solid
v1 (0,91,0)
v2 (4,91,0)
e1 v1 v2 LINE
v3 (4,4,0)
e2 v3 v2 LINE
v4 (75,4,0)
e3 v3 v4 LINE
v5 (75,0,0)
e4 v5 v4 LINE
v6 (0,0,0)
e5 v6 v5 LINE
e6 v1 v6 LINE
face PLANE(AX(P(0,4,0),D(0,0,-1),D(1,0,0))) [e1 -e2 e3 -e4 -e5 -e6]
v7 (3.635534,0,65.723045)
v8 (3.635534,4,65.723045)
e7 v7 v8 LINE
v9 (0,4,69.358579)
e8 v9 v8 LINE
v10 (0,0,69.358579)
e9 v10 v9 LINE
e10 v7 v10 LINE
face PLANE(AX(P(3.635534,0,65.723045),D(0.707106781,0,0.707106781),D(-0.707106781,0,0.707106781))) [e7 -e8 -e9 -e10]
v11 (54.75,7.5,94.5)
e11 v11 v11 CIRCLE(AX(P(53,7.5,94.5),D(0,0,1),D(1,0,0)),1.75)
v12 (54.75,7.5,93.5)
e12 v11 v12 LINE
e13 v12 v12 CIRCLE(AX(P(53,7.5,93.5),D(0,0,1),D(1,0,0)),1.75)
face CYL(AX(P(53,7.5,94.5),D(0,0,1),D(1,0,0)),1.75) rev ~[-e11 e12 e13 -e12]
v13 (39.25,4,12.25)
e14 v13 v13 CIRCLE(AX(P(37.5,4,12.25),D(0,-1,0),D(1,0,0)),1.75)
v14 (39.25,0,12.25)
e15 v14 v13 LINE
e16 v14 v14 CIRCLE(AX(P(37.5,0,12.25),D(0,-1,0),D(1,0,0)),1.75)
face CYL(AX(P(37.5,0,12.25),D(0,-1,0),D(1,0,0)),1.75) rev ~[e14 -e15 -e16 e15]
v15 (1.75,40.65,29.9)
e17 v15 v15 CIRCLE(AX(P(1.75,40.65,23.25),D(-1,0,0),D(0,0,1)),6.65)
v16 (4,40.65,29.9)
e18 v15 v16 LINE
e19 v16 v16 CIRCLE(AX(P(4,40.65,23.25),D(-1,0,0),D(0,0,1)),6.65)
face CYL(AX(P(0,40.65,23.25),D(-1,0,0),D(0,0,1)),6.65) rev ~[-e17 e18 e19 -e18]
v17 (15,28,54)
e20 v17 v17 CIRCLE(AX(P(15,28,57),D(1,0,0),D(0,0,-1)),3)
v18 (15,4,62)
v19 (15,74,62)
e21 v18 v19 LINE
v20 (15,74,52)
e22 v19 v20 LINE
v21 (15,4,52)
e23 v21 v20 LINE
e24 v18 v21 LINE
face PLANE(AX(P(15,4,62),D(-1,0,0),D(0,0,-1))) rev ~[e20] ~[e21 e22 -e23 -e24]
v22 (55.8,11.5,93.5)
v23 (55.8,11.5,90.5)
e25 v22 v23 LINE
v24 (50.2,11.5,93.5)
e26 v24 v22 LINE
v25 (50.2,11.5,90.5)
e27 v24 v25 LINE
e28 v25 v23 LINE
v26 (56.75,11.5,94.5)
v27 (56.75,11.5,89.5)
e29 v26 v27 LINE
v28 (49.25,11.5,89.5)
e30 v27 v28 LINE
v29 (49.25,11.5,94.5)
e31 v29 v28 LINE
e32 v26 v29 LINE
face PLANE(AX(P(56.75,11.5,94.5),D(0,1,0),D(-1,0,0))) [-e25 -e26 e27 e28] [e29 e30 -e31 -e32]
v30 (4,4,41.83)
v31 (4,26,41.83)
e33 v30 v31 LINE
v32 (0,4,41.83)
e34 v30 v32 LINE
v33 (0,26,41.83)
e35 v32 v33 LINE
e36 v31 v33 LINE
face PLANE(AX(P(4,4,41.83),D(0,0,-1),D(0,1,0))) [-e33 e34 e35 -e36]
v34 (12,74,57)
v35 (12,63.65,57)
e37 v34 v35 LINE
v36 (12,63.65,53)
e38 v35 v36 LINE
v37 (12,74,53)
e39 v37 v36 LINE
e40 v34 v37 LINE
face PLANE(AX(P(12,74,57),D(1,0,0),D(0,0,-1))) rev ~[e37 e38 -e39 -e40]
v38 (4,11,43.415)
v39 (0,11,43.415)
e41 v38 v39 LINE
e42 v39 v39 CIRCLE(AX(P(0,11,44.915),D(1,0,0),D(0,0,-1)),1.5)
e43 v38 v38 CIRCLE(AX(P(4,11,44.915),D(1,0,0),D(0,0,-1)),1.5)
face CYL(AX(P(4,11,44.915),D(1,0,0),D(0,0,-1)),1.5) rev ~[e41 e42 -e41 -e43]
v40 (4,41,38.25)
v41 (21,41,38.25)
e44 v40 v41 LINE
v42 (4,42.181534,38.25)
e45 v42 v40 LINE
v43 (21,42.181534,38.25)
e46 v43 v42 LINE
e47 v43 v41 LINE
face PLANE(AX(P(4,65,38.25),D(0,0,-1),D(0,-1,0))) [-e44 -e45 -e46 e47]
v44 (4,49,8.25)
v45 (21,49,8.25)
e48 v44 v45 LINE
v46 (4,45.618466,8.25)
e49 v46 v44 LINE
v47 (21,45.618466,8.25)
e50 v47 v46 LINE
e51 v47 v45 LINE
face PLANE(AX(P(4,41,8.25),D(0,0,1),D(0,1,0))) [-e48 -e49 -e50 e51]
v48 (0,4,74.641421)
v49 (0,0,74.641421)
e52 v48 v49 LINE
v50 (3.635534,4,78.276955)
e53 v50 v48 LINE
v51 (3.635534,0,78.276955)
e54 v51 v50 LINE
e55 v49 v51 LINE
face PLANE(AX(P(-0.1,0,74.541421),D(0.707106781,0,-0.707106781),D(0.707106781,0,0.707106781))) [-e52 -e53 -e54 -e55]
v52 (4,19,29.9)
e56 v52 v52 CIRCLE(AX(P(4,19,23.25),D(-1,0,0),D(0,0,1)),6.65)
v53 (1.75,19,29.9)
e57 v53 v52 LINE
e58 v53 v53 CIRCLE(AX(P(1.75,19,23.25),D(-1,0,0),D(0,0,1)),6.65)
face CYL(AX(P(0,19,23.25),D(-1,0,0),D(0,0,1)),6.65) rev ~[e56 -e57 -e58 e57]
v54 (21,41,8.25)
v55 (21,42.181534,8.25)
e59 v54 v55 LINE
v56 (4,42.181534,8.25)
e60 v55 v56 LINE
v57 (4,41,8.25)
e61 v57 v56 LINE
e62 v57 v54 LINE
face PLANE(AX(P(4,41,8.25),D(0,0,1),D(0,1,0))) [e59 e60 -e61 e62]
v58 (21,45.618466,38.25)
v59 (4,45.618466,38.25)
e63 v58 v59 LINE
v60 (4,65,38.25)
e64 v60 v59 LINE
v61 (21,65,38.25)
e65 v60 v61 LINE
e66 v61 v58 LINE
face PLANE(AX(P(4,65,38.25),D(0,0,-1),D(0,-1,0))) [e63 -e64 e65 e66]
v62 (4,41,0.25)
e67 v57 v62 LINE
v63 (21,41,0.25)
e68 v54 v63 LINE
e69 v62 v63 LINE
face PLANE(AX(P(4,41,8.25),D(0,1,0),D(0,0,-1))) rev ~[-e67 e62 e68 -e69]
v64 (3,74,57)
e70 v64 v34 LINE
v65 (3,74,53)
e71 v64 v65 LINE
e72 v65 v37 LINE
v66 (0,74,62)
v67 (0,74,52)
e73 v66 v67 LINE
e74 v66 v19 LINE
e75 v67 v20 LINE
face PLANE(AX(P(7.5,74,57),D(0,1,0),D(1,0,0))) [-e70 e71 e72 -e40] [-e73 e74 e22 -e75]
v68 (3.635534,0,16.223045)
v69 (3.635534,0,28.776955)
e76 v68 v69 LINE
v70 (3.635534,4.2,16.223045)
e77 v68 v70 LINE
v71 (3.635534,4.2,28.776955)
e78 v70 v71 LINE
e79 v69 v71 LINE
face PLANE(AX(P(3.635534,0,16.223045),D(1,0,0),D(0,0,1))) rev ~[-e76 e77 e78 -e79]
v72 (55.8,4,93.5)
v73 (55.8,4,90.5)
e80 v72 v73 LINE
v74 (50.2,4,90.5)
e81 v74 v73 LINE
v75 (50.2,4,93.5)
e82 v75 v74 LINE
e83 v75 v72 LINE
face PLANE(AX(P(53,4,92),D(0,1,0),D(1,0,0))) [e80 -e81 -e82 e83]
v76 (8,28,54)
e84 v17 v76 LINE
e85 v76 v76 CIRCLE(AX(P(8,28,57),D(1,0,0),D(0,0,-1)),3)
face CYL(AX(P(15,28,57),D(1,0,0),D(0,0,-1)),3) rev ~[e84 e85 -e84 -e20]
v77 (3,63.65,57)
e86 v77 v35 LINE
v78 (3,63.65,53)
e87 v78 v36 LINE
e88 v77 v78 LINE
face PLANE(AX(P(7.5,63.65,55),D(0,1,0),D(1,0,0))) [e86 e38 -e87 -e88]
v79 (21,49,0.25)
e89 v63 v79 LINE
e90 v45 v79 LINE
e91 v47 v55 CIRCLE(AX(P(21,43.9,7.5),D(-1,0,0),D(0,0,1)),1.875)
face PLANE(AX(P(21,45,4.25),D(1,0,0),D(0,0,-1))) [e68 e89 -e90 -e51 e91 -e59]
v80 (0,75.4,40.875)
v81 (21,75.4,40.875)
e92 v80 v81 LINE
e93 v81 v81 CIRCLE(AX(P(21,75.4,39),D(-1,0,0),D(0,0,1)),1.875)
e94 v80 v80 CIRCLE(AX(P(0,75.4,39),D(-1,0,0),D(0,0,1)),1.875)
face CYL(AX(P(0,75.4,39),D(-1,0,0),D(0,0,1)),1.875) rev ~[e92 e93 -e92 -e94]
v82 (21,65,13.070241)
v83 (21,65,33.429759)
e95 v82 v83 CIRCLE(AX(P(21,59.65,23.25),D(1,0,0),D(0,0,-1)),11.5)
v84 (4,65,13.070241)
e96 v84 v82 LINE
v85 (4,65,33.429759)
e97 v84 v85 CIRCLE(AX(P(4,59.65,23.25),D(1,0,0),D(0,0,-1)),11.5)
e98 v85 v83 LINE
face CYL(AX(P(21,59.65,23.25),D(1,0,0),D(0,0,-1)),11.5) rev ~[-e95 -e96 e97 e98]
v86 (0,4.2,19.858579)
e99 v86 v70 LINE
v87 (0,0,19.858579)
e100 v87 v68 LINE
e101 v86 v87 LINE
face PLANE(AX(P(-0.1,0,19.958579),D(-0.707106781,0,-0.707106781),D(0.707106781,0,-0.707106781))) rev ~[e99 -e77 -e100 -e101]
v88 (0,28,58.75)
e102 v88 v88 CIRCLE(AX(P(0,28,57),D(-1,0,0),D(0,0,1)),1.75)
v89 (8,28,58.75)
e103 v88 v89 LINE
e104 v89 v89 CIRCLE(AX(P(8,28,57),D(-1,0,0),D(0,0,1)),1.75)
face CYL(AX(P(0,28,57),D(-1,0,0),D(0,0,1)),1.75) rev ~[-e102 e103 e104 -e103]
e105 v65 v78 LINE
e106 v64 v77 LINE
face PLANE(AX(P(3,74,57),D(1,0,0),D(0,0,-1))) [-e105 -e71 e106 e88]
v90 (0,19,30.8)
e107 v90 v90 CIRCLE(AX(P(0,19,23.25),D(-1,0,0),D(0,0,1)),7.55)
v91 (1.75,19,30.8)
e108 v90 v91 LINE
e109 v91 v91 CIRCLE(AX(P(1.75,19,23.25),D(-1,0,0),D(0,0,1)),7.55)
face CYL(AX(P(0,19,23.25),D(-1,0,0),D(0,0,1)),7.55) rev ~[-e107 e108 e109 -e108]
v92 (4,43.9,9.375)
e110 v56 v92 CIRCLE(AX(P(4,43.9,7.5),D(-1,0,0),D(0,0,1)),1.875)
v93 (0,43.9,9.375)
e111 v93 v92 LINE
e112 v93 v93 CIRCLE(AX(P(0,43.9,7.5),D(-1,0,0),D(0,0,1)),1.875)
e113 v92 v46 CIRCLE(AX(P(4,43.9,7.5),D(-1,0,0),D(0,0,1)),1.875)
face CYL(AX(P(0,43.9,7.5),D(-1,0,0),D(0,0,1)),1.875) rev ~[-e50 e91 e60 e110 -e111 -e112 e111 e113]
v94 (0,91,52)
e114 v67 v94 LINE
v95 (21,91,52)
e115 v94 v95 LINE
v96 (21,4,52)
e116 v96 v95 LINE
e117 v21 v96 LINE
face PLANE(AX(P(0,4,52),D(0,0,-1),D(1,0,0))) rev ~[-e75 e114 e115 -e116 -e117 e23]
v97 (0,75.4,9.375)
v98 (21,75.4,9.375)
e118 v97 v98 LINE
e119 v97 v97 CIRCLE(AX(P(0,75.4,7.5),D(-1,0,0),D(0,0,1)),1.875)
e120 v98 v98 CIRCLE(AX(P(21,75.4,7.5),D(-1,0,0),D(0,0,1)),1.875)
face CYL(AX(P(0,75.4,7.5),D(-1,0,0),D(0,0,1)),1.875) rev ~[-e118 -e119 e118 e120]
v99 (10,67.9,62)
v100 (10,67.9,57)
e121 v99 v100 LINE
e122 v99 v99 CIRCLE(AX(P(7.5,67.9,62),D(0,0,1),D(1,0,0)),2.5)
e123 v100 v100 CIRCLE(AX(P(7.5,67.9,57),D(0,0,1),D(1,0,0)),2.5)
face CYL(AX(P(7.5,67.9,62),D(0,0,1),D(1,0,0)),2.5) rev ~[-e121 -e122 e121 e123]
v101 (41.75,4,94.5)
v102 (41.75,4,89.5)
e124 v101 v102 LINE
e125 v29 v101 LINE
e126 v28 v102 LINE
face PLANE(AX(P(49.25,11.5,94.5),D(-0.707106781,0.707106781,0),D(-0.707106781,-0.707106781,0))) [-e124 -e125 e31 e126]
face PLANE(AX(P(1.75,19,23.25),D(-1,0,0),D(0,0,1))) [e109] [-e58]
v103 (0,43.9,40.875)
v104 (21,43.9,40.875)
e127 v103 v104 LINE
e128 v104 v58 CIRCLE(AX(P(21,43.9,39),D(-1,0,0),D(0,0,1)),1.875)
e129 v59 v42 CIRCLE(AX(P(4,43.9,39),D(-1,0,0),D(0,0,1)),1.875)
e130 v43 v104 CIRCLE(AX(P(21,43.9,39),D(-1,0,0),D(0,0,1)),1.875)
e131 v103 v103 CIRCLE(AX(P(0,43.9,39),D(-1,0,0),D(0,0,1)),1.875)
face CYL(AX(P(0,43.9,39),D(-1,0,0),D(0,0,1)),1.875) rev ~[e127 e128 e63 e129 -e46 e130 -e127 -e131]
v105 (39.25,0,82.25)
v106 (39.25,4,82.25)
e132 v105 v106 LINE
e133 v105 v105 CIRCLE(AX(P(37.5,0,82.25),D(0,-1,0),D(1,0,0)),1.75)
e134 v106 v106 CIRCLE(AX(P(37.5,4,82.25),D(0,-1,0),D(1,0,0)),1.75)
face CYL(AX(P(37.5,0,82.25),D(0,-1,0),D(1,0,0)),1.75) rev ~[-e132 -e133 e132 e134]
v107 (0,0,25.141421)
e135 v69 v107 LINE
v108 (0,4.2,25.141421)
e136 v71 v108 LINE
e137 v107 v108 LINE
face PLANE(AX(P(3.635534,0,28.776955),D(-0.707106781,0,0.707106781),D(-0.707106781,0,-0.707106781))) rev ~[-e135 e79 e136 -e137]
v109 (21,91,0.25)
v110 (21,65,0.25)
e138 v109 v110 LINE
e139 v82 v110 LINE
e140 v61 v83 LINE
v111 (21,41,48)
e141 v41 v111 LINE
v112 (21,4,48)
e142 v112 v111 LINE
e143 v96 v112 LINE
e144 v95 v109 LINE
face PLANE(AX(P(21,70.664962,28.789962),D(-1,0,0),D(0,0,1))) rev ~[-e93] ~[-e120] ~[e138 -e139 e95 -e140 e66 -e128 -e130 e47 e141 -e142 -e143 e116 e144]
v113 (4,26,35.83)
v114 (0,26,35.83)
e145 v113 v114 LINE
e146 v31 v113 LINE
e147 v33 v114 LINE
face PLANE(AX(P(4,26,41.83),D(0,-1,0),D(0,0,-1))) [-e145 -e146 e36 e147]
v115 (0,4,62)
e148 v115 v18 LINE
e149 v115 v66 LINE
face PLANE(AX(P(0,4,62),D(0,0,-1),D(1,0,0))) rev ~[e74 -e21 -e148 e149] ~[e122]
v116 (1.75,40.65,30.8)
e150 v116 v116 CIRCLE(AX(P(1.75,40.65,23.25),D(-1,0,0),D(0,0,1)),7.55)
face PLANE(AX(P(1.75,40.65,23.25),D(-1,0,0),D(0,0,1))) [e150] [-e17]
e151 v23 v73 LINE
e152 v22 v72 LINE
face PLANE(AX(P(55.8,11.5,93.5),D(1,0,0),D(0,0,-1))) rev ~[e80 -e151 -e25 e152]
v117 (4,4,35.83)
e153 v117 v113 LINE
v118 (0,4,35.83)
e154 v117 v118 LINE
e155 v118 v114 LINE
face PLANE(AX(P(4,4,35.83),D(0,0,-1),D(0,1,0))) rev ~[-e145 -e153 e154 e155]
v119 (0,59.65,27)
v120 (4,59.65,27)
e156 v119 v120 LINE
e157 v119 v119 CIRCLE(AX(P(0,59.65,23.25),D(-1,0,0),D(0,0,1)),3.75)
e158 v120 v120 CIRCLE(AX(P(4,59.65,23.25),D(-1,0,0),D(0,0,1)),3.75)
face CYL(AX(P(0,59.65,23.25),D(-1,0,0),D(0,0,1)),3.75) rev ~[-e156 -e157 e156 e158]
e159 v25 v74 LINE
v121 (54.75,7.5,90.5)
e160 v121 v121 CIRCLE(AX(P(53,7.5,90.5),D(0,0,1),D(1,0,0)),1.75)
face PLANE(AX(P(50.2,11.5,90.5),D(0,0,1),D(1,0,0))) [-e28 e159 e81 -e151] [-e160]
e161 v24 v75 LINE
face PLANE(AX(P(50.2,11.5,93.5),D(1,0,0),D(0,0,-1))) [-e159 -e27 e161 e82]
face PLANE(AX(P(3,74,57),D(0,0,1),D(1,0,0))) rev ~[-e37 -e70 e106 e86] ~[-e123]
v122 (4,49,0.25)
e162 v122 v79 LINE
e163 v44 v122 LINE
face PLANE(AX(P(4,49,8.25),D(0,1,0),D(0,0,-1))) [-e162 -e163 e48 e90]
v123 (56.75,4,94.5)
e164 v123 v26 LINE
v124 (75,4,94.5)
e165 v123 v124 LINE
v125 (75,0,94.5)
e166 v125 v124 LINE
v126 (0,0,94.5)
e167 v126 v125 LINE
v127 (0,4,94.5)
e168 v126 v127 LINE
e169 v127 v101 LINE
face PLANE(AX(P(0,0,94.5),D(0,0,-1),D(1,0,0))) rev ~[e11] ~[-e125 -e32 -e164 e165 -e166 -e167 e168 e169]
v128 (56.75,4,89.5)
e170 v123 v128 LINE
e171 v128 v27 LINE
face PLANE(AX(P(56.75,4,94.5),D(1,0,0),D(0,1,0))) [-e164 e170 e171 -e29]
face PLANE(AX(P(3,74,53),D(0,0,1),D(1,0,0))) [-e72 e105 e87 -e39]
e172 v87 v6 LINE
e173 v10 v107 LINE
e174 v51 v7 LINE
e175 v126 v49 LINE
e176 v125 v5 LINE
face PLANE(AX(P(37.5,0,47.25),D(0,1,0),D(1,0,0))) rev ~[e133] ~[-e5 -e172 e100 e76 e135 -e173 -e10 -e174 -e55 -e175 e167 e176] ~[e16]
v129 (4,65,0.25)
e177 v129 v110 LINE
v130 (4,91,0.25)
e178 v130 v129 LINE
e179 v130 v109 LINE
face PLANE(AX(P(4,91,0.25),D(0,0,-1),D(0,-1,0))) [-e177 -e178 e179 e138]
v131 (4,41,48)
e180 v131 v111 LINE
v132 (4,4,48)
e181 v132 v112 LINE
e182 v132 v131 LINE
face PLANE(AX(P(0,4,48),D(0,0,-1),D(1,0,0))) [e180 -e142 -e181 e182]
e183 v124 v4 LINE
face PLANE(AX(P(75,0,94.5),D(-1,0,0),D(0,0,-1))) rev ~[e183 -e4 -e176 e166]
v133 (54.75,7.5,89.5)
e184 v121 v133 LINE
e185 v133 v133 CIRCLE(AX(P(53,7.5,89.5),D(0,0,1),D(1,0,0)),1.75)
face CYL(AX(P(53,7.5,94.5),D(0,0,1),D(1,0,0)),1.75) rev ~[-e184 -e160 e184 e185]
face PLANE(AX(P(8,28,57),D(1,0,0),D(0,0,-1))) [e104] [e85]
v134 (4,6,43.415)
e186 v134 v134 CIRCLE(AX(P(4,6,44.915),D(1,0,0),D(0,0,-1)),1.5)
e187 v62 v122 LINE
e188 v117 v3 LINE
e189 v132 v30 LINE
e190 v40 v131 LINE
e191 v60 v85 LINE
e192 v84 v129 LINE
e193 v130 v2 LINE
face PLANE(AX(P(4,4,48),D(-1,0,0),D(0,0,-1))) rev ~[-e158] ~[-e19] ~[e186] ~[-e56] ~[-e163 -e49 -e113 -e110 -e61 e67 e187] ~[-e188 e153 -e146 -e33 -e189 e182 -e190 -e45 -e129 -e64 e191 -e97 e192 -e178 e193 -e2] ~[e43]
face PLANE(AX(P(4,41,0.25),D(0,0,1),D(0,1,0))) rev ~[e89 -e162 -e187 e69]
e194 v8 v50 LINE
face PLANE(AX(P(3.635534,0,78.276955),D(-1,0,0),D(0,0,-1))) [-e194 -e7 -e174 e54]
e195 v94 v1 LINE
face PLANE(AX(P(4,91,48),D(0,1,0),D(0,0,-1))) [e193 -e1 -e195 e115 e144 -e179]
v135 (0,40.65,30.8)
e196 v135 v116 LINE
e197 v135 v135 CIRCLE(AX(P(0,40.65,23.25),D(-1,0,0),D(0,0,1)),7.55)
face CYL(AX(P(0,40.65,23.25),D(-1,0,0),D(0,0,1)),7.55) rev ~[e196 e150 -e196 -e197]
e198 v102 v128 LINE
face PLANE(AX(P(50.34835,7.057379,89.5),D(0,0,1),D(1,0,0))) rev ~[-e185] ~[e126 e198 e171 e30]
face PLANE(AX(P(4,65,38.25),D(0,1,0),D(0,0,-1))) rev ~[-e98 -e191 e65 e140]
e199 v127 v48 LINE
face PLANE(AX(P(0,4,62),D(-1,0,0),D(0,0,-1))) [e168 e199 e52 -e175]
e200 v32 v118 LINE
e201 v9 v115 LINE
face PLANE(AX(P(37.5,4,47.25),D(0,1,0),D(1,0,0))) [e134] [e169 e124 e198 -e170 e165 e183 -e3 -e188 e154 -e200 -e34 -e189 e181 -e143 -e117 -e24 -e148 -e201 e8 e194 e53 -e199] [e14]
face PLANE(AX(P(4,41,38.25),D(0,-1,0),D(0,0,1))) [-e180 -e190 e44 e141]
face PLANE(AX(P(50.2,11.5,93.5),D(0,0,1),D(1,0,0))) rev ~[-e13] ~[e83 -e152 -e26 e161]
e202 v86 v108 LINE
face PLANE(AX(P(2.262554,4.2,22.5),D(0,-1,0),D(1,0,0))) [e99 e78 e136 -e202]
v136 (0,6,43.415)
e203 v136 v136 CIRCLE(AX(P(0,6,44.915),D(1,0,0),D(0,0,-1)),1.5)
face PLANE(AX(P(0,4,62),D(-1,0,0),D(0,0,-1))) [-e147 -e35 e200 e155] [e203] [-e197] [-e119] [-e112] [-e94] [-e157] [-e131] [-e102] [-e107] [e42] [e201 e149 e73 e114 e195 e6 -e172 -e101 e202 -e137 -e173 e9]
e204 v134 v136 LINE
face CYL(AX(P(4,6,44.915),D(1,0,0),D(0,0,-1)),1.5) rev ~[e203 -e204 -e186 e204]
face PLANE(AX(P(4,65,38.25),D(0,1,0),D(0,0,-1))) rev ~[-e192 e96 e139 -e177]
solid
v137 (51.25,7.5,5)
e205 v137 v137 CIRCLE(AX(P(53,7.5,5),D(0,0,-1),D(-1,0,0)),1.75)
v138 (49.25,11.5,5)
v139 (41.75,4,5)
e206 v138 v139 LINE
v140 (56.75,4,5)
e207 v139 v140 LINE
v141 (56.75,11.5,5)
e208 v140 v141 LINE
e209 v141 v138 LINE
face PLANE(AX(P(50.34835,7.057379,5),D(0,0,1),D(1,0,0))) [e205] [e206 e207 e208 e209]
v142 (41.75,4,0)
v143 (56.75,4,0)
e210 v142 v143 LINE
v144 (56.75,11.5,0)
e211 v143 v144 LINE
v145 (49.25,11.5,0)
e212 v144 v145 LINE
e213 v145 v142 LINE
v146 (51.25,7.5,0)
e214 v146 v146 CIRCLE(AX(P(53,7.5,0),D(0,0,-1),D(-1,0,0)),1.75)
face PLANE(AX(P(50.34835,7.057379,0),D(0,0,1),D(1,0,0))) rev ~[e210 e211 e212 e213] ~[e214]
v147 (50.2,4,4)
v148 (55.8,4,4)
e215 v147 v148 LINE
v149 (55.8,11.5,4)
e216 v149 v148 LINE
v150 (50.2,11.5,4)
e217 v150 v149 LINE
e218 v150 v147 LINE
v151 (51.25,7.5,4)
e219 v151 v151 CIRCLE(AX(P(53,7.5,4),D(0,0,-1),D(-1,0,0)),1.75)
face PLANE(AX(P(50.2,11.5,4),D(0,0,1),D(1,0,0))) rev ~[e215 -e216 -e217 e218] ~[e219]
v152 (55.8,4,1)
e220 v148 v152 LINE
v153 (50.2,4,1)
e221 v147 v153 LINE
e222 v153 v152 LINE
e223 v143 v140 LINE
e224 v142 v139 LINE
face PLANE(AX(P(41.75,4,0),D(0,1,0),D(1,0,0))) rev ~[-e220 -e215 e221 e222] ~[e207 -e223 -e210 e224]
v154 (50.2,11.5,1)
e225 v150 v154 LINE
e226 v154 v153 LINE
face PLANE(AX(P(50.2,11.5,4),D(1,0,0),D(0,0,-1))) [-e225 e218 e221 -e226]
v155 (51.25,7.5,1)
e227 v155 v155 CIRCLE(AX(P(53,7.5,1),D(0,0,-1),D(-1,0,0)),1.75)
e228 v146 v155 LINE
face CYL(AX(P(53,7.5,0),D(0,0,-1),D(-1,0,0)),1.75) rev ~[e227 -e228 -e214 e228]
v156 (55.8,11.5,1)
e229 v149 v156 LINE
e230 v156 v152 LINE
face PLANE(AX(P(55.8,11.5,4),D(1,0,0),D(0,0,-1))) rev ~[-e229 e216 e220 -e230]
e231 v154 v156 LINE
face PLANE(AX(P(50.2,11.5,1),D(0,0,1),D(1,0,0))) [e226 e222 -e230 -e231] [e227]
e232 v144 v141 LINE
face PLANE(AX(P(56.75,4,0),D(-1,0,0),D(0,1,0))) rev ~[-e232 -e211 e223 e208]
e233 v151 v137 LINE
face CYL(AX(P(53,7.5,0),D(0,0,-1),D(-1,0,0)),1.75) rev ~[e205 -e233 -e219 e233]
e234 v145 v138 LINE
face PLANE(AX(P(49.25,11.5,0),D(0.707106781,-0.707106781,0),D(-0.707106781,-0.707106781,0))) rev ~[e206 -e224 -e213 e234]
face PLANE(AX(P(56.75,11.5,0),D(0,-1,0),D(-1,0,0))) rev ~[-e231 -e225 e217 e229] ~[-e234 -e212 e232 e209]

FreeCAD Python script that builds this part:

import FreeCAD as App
import Part
import Sketcher
Q = App.Units.Quantity


def add_polygon(sketch, points):
    """Adds a closed chain of lines whose ends are joined by coincident constraints."""
    first, n = sketch.GeometryCount, len(points)
    for a, b in zip(points, points[1:] + points[:1]):
        sketch.addGeometry(Part.LineSegment(App.Vector(*a, 0), App.Vector(*b, 0)), False)
    for i in range(n):
        sketch.addConstraint(Sketcher.Constraint("Coincident", first + i, 2, first + (i + 1) % n, 1))

doc = App.newDocument("Part")
body = doc.addObject("PartDesign::Body", "Body")

# Sketch on XZ plane
sketch1 = body.newObject("Sketcher::SketchObject", "Sketch")
sketch1.AttachmentSupport = (doc.getObject("XZ_Plane"), [""])
sketch1.MapMode = "FlatFace"
add_polygon(sketch1, [(0, 0), (0, 94), (75, 94), (75, 0)])  # lines 0-3
sketch1.addConstraint([
    Sketcher.Constraint("Vertical", 0),
    Sketcher.Constraint("Horizontal", 1),
    Sketcher.Constraint("Vertical", 2),
    Sketcher.Constraint("Horizontal", 3),
    Sketcher.Constraint("Coincident", 3, 2, -1, 1),
    Sketcher.Constraint("DistanceX", 1, 1, 1, 2, 75.0),
    Sketcher.Constraint("DistanceY", 0, 1, 0, 2, 94.5),
])
pad1 = body.newObject("PartDesign::Pad", "Pad")
pad1.Profile = sketch1
pad1.Length = 4
pad1.Reversed = True

# Sketch on XZ plane
sketch2 = body.newObject("Sketcher::SketchObject", "Sketch001")
sketch2.AttachmentSupport = (doc.getObject("XZ_Plane"), [""])
sketch2.MapMode = "FlatFace"
sketch2.AttachmentOffset = App.Placement(App.Vector(0, 0, -4), App.Rotation())
add_polygon(sketch2, [(0, 48), (0, 52), (21, 52), (21, 48)])  # lines 0-3
sketch2.addConstraint([
    Sketcher.Constraint("Vertical", 0),
    Sketcher.Constraint("Horizontal", 1),
    Sketcher.Constraint("Vertical", 2),
    Sketcher.Constraint("Horizontal", 3),
    Sketcher.Constraint("PointOnObject", 0, 2, -2),
    Sketcher.Constraint("DistanceX", 1, 1, 1, 2, 21.0),
    Sketcher.Constraint("DistanceY", 0, 1, 0, 2, 4.0),
    Sketcher.Constraint("DistanceY", -1, 1, 0, 2, 52.0),
])
pad2 = body.newObject("PartDesign::Pad", "Pad001")
pad2.Profile = sketch2
pad2.Length = 87
pad2.Reversed = True

# Sketch on XZ plane
sketch3 = body.newObject("Sketcher::SketchObject", "Sketch002")
sketch3.AttachmentSupport = (doc.getObject("XZ_Plane"), [""])
sketch3.MapMode = "FlatFace"
sketch3.AttachmentOffset = App.Placement(App.Vector(0, 0, -4), App.Rotation())
add_polygon(sketch3, [(0, 0), (0, 48), (4, 48), (4, 0)])  # lines 0-3
sketch3.addConstraint([
    Sketcher.Constraint("Vertical", 0),
    Sketcher.Constraint("Horizontal", 1),
    Sketcher.Constraint("Vertical", 2),
    Sketcher.Constraint("Horizontal", 3),
    Sketcher.Constraint("Coincident", 3, 2, -1, 1),
    Sketcher.Constraint("DistanceX", 1, 1, 1, 2, 4.0),
    Sketcher.Constraint("DistanceY", 0, 1, 0, 2, 48.0),
])
pad3 = body.newObject("PartDesign::Pad", "Pad002")
pad3.Profile = sketch3
pad3.Length = 87
pad3.Reversed = True

# Sketch on XZ plane
sketch4 = body.newObject("Sketcher::SketchObject", "Sketch003")
sketch4.AttachmentSupport = (doc.getObject("XZ_Plane"), [""])
sketch4.MapMode = "FlatFace"
sketch4.AttachmentOffset = App.Placement(App.Vector(0, 0, -4), App.Rotation())
add_polygon(sketch4, [(0, 52), (0, 62), (15, 62), (15, 52)])  # lines 0-3
sketch4.addConstraint([
    Sketcher.Constraint("Vertical", 0),
    Sketcher.Constraint("Horizontal", 1),
    Sketcher.Constraint("Vertical", 2),
    Sketcher.Constraint("Horizontal", 3),
    Sketcher.Constraint("PointOnObject", 0, 2, -2),
    Sketcher.Constraint("DistanceX", 1, 1, 1, 2, 15.0),
    Sketcher.Constraint("DistanceY", 0, 1, 0, 2, 10.0),
    Sketcher.Constraint("DistanceY", -1, 1, 0, 2, 62.0),
])
pad4 = body.newObject("PartDesign::Pad", "Pad003")
pad4.Profile = sketch4
pad4.Length = 70
pad4.Reversed = True

# Sketch on YZ plane
sketch5 = body.newObject("Sketcher::SketchObject", "Sketch004")
sketch5.AttachmentSupport = (doc.getObject("YZ_Plane"), [""])
sketch5.MapMode = "FlatFace"
sketch5.AttachmentOffset = App.Placement(App.Vector(0, 0, 4), App.Rotation())
add_polygon(sketch5, [(91, 48), (41, 48), (41, 38), (65, 38), (65, 0), (91, 0)])  # lines 0-5
add_polygon(sketch5, [(49, 8), (41, 8), (41, 0), (49, 0)])  # lines 6-9
sketch5.addConstraint([
    Sketcher.Constraint("Horizontal", 0),
    Sketcher.Constraint("Vertical", 1),
    Sketcher.Constraint("Horizontal", 2),
    Sketcher.Constraint("Vertical", 3),
    Sketcher.Constraint("Horizontal", 4),
    Sketcher.Constraint("Vertical", 5),
    Sketcher.Constraint("Horizontal", 6),
    Sketcher.Constraint("Vertical", 7),
    Sketcher.Constraint("Horizontal", 8),
    Sketcher.Constraint("Vertical", 9),
    Sketcher.Constraint("Horizontal", 4, 2, 7, 2),
    Sketcher.Constraint("Vertical", 1, 2, 6, 2),
    Sketcher.Constraint("Equal", 8, 7),
    Sketcher.Constraint("DistanceX", 0, 2, 0, 1, 50.0),
    Sketcher.Constraint("DistanceX", 2, 1, 2, 2, 24.0),
    Sketcher.Constraint("DistanceX", 6, 2, 6, 1, 8.0),
    Sketcher.Constraint("DistanceY", 3, 2, 3, 1, 38.0),
    Sketcher.Constraint("DistanceX", -1, 1, 0, 2, 41.0),
    Sketcher.Constraint("DistanceY", -1, 1, 0, 2, 48.0),
    Sketcher.Constraint("DistanceY", 1, 2, 1, 1, 9.75),
])
pad5 = body.newObject("PartDesign::Pad", "Pad004")
pad5.Profile = sketch5
pad5.Length = 17

# Sketch on YZ plane
sketch6 = body.newObject("Sketcher::SketchObject", "Sketch005")
sketch6.AttachmentSupport = (doc.getObject("YZ_Plane"), [""])
sketch6.MapMode = "FlatFace"
sketch6.addGeometry([
    Part.Circle(App.Vector(19, 23.2, 0), App.Vector(0, 0, 1), 6.7),  # 0
    Part.Circle(App.Vector(40.6, 23.2, 0), App.Vector(0, 0, 1), 6.7),  # 1
    Part.Circle(App.Vector(59.6, 23.2, 0), App.Vector(0, 0, 1), 3.8),  # 2
    Part.Circle(App.Vector(75.4, 39, 0), App.Vector(0, 0, 1), 1.9),  # 3
    Part.Circle(App.Vector(43.9, 39, 0), App.Vector(0, 0, 1), 1.9),  # 4
    Part.Circle(App.Vector(43.9, 7.5, 0), App.Vector(0, 0, 1), 1.9),  # 5
    Part.Circle(App.Vector(75.4, 7.5, 0), App.Vector(0, 0, 1), 1.9),  # 6
], False)
sketch6.addConstraint([
    Sketcher.Constraint("Equal", 0, 1),
    Sketcher.Constraint("Equal", 3, 4),
    Sketcher.Constraint("Equal", 4, 5),
    Sketcher.Constraint("Equal", 5, 6),
    Sketcher.Constraint("Horizontal", 0, 3, 1, 3),
    Sketcher.Constraint("Horizontal", 1, 3, 2, 3),
    Sketcher.Constraint("Horizontal", 3, 3, 4, 3),
    Sketcher.Constraint("Horizontal", 5, 3, 6, 3),
    Sketcher.Constraint("Vertical", 4, 3, 5, 3),
    Sketcher.Constraint("Vertical", 3, 3, 6, 3),
    Sketcher.Constraint("Diameter", 0, 13.3),
    Sketcher.Constraint("Diameter", 2, 7.5),
    Sketcher.Constraint("Diameter", 3, 3.75),
    Sketcher.Constraint("DistanceX", -1, 1, 0, 3, 19.0),
    Sketcher.Constraint("DistanceY", -1, 1, 3, 3, 39.0),
    Sketcher.Constraint("DistanceX", 1, 3, 2, 3, 19.0),
    Sketcher.Constraint("DistanceX", -1, 1, 3, 3, 75.4),
    Sketcher.Constraint("DistanceX", -1, 1, 4, 3, 43.9),
    Sketcher.Constraint("DistanceY", -1, 1, 5, 3, 7.5),
    Sketcher.Constraint("DistanceY", -1, 1, 0, 3, 23.25),
    Sketcher.Constraint("DistanceX", -1, 1, 1, 3, 40.65),
])
pocket1 = body.newObject("PartDesign::Pocket", "Pocket")
pocket1.Profile = sketch6
pocket1.Length = 21
pocket1.Reversed = True

# Sketch on YZ plane
sketch7 = body.newObject("Sketcher::SketchObject", "Sketch006")
sketch7.AttachmentSupport = (doc.getObject("YZ_Plane"), [""])
sketch7.MapMode = "FlatFace"
sketch7.addGeometry([
    Part.Circle(App.Vector(19, 23, 0), App.Vector(0, 0, 1), 8),
    Part.Circle(App.Vector(41, 23, 0), App.Vector(0, 0, 1), 8),
], False)
sketch7.addConstraint([
    Sketcher.Constraint("Equal", 0, 1),
    Sketcher.Constraint("Horizontal", 0, 3, 1, 3),
    Sketcher.Constraint("Diameter", 0, 15.1),
    Sketcher.Constraint("DistanceX", -1, 1, 0, 3, 19.0),
    Sketcher.Constraint("DistanceY", -1, 1, 0, 3, 23.25),
    Sketcher.Constraint("DistanceX", -1, 1, 1, 3, 40.65),
])
pocket2 = body.newObject("PartDesign::Pocket", "Pocket001")
pocket2.Profile = sketch7
pocket2.Length = 1.75
pocket2.Reversed = True

# Sketch on XY plane
sketch8 = body.newObject("Sketcher::SketchObject", "Sketch007")
sketch8.AttachmentSupport = (doc.getObject("XY_Plane"), [""])
sketch8.MapMode = "FlatFace"
sketch8.AttachmentOffset = App.Placement(App.Vector(0, 0, 62), App.Rotation())
sketch8.addGeometry(Part.Circle(App.Vector(7.5, 67.9, 0), App.Vector(0, 0, 1), 2.5), False)
sketch8.addConstraint([
    Sketcher.Constraint("Diameter", 0, 5.0),
    Sketcher.Constraint("DistanceX", -1, 1, 0, 3, 7.5),
    Sketcher.Constraint("DistanceY", -1, 1, 0, 3, 67.9),
])
pocket3 = body.newObject("PartDesign::Pocket", "Pocket002")
pocket3.Profile = sketch8
pocket3.Length = 8

# Sketch on XZ plane
sketch9 = body.newObject("Sketcher::SketchObject", "Sketch008")
sketch9.AttachmentSupport = (doc.getObject("XZ_Plane"), [""])
sketch9.MapMode = "FlatFace"
sketch9.AttachmentOffset = App.Placement(App.Vector(0, 0, -74), App.Rotation())
add_polygon(sketch9, [(3, 53), (3, 57), (12, 57), (12, 53)])  # lines 0-3
sketch9.addConstraint([
    Sketcher.Constraint("Vertical", 0),
    Sketcher.Constraint("Horizontal", 1),
    Sketcher.Constraint("Vertical", 2),
    Sketcher.Constraint("Horizontal", 3),
    Sketcher.Constraint("DistanceX", 1, 1, 1, 2, 9.0),
    Sketcher.Constraint("DistanceY", 0, 1, 0, 2, 4.0),
    Sketcher.Constraint("DistanceX", -1, 1, 0, 2, 3.0),
    Sketcher.Constraint("DistanceY", -1, 1, 0, 2, 57.0),
])
pocket4 = body.newObject("PartDesign::Pocket", "Pocket003")
pocket4.Profile = sketch9
pocket4.Length = 10.35
pocket4.Reversed = True

# Sketch on YZ plane
sketch10 = body.newObject("Sketcher::SketchObject", "Sketch009")
sketch10.AttachmentSupport = (doc.getObject("YZ_Plane"), [""])
sketch10.MapMode = "FlatFace"
sketch10.AttachmentOffset = App.Placement(App.Vector(0, 0, 21), App.Rotation())
sketch10.addGeometry(Part.Circle(App.Vector(60, 23, 0), App.Vector(0, 0, 1), 12), False)
sketch10.addConstraint([
    Sketcher.Constraint("Diameter", 0, 23.0),
    Sketcher.Constraint("DistanceX", -1, 1, 0, 3, 59.65),
    Sketcher.Constraint("DistanceY", -1, 1, 0, 3, 23.25),
])
pocket5 = body.newObject("PartDesign::Pocket", "Pocket004")
pocket5.Profile = sketch10
pocket5.Length = 17

# Sketch on YZ plane
sketch11 = body.newObject("Sketcher::SketchObject", "Sketch010")
sketch11.AttachmentSupport = (doc.getObject("YZ_Plane"), [""])
sketch11.MapMode = "FlatFace"
sketch11.addGeometry(Part.Circle(App.Vector(28, 57, 0), App.Vector(0, 0, 1), 1.8), False)
sketch11.addConstraint([
    Sketcher.Constraint("Diameter", 0, 3.5),
    Sketcher.Constraint("DistanceX", -1, 1, 0, 3, 28.0),
    Sketcher.Constraint("DistanceY", -1, 1, 0, 3, 57.0),
])
pocket6 = body.newObject("PartDesign::Pocket", "Pocket005")
pocket6.Profile = sketch11
pocket6.Length = 15
pocket6.Reversed = True

# Sketch on YZ plane
sketch12 = body.newObject("Sketcher::SketchObject", "Sketch011")
sketch12.AttachmentSupport = (doc.getObject("YZ_Plane"), [""])
sketch12.MapMode = "FlatFace"
sketch12.AttachmentOffset = App.Placement(App.Vector(0, 0, 15), App.Rotation())
sketch12.addGeometry(Part.Circle(App.Vector(28, 57, 0), App.Vector(0, 0, 1), 3), False)
sketch12.addConstraint([
    Sketcher.Constraint("Diameter", 0, 6.0),
    Sketcher.Constraint("DistanceX", -1, 1, 0, 3, 28.0),
    Sketcher.Constraint("DistanceY", -1, 1, 0, 3, 57.0),
])
pocket7 = body.newObject("PartDesign::Pocket", "Pocket006")
pocket7.Profile = sketch12
pocket7.Length = 7

# Sketch on XZ plane
sketch13 = body.newObject("Sketcher::SketchObject", "Sketch012")
sketch13.AttachmentSupport = (doc.getObject("XZ_Plane"), [""])
sketch13.MapMode = "FlatFace"
add_polygon(sketch13, [(0, 69), (4, 66), (4, 78), (0, 75)])  # lines 0-3
add_polygon(sketch13, [(4, 16), (4, 29), (0, 25), (0, 20)])  # lines 4-7
sketch13.addConstraint([
    Sketcher.Constraint("Vertical", 1),
    Sketcher.Constraint("Vertical", 3),
    Sketcher.Constraint("Vertical", 4),
    Sketcher.Constraint("Vertical", 6),
    Sketcher.Constraint("Perpendicular", 0, 2),
    Sketcher.Constraint("Parallel", 2, 5),
    Sketcher.Constraint("Perpendicular", 5, 7),
    Sketcher.Constraint("Vertical", 1, 2, 4, 2),
    Sketcher.Constraint("Vertical", 3, 2, 5, 2),
    Sketcher.Constraint("Equal", 1, 4),
    Sketcher.Constraint("Equal", 0, 2),
    Sketcher.Constraint("DistanceX", 2, 2, -1, 1, 0.1),
    Sketcher.Constraint("DistanceY", 4, 2, 1, 2, 49.5),
    Sketcher.Constraint("DistanceY", 1, 1, 1, 2, 12.553911),
    Sketcher.Constraint("DistanceY", 3, 2, 3, 1, 5.082843),
    Sketcher.Constraint("DistanceY", -1, 1, 2, 2, 74.541421),
])
pocket8 = body.newObject("PartDesign::Pocket", "Pocket007")
pocket8.Profile = sketch13
pocket8.Length = 4.2

# Sketch on XY plane
sketch14 = body.newObject("Sketcher::SketchObject", "Sketch013")
sketch14.AttachmentSupport = (doc.getObject("XY_Plane"), [""])
sketch14.MapMode = "FlatFace"
sketch14.AttachmentOffset = App.Placement(App.Vector(0, 0, 94.5), App.Rotation())
add_polygon(sketch14, [(57, 4), (57, 12), (49, 12), (42, 4)])  # lines 0-3
sketch14.addConstraint([
    Sketcher.Constraint("Vertical", 0),
    Sketcher.Constraint("Horizontal", 1),
    Sketcher.Constraint("Horizontal", 3),
    Sketcher.Constraint("Equal", 1, 0),
    Sketcher.Constraint("DistanceX", 3, 1, 3, 2, 15.0),
    Sketcher.Constraint("Angle", 2, Q("-135 deg")),
    Sketcher.Constraint("DistanceY", -1, 1, 2, 2, 4.0),
    Sketcher.Constraint("DistanceX", -1, 1, 0, 2, 56.75),
])
pad6 = body.newObject("PartDesign::Pad", "Pad005")
pad6.Profile = sketch14
pad6.Length = 5
pad6.Reversed = True

# Sketch on XY plane
sketch15 = body.newObject("Sketcher::SketchObject", "Sketch014")
sketch15.AttachmentSupport = (doc.getObject("XY_Plane"), [""])
sketch15.MapMode = "FlatFace"
sketch15.AttachmentOffset = App.Placement(App.Vector(0, 0, 94.5), App.Rotation())
sketch15.addGeometry(Part.Circle(App.Vector(53, 7.5, 0), App.Vector(0, 0, 1), 1.8), False)
sketch15.addConstraint([
    Sketcher.Constraint("Diameter", 0, 3.5),
    Sketcher.Constraint("DistanceX", -1, 1, 0, 3, 53.0),
    Sketcher.Constraint("DistanceY", -1, 1, 0, 3, 7.5),
])
pocket9 = body.newObject("PartDesign::Pocket", "Pocket008")
pocket9.Profile = sketch15
pocket9.Length = 10

# Sketch on XZ plane
sketch16 = body.newObject("Sketcher::SketchObject", "Sketch015")
sketch16.AttachmentSupport = (doc.getObject("XZ_Plane"), [""])
sketch16.MapMode = "FlatFace"
sketch16.AttachmentOffset = App.Placement(App.Vector(0, 0, -11.5), App.Rotation())
add_polygon(sketch16, [(50.2, 90.5), (50.2, 93.5), (55.8, 93.5), (55.8, 90.5)])  # lines 0-3
sketch16.addConstraint([
    Sketcher.Constraint("Vertical", 0),
    Sketcher.Constraint("Horizontal", 1),
    Sketcher.Constraint("Vertical", 2),
    Sketcher.Constraint("Horizontal", 3),
    Sketcher.Constraint("DistanceY", 0, 1, 0, 2, 3.0),
    Sketcher.Constraint("DistanceX", 1, 1, 1, 2, 5.6),
    Sketcher.Constraint("DistanceX", -1, 1, 0, 2, 50.2),
    Sketcher.Constraint("DistanceY", -1, 1, 0, 2, 93.5),
])
pocket10 = body.newObject("PartDesign::Pocket", "Pocket009")
pocket10.Profile = sketch16
pocket10.Length = 7.5
pocket10.Reversed = True

# Sketch on XZ plane
sketch17 = body.newObject("Sketcher::SketchObject", "Sketch016")
sketch17.AttachmentSupport = (doc.getObject("XZ_Plane"), [""])
sketch17.MapMode = "FlatFace"
sketch17.addGeometry([
    Part.Circle(App.Vector(37.5, 82.2, 0), App.Vector(0, 0, 1), 1.8),
    Part.Circle(App.Vector(37.5, 12.2, 0), App.Vector(0, 0, 1), 1.8),
], False)
sketch17.addConstraint([
    Sketcher.Constraint("Equal", 0, 1),
    Sketcher.Constraint("Vertical", 0, 3, 1, 3),
    Sketcher.Constraint("Diameter", 0, 3.5),
    Sketcher.Constraint("DistanceY", 1, 3, 0, 3, 70.0),
    Sketcher.Constraint("DistanceX", -1, 1, 0, 3, 37.5),
    Sketcher.Constraint("DistanceY", -1, 1, 0, 3, 82.25),
])
pocket11 = body.newObject("PartDesign::Pocket", "Pocket010")
pocket11.Profile = sketch17
pocket11.Length = 10

# Sketch on YZ plane
sketch18 = body.newObject("Sketcher::SketchObject", "Sketch017")
sketch18.AttachmentSupport = (doc.getObject("YZ_Plane"), [""])
sketch18.MapMode = "FlatFace"
sketch18.AttachmentOffset = App.Placement(App.Vector(0, 0, 4), App.Rotation())
sketch18.addGeometry(Part.Circle(App.Vector(11, 44.9, 0), App.Vector(0, 0, 1), 1.5), False)  # 0
sketch18.addGeometry(Part.Circle(App.Vector(6, 44.9, 0), App.Vector(0, 0, 1), 1.5), False)  # 1
add_polygon(sketch18, [(26, 41.8), (4, 41.8), (4, 35.8), (26, 35.8)])  # lines 2-5
sketch18.addConstraint([
    Sketcher.Constraint("Horizontal", 2),
    Sketcher.Constraint("Vertical", 3),
    Sketcher.Constraint("Horizontal", 4),
    Sketcher.Constraint("Vertical", 5),
    Sketcher.Constraint("Equal", 0, 1),
    Sketcher.Constraint("Horizontal", 0, 3, 1, 3),
    Sketcher.Constraint("Diameter", 0, 3.0),
    Sketcher.Constraint("DistanceX", 2, 2, 2, 1, 22.0),
    Sketcher.Constraint("DistanceY", 3, 2, 3, 1, 6.0),
    Sketcher.Constraint("DistanceX", -1, 1, 0, 3, 11.0),
    Sketcher.Constraint("DistanceX", -1, 1, 1, 3, 6.0),
    Sketcher.Constraint("DistanceX", -1, 1, 2, 2, 4.0),
    Sketcher.Constraint("DistanceY", -1, 1, 2, 2, 41.83),
    Sketcher.Constraint("DistanceY", -1, 1, 0, 3, 44.915),
])
pocket12 = body.newObject("PartDesign::Pocket", "Pocket011")
pocket12.Profile = sketch18
pocket12.Length = 4
body2 = doc.addObject("PartDesign::Body", "Body001")

# Sketch on XY plane
sketch19 = body2.newObject("Sketcher::SketchObject", "Sketch018")
sketch19.AttachmentSupport = (doc.getObject("XY_Plane001"), [""])
sketch19.MapMode = "FlatFace"
add_polygon(sketch19, [(57, 12), (57, 4), (42, 4), (49, 12)])  # lines 0-3
sketch19.addConstraint([
    Sketcher.Constraint("Vertical", 0),
    Sketcher.Constraint("Horizontal", 1),
    Sketcher.Constraint("Horizontal", 3),
    Sketcher.Constraint("Equal", 3, 0),
    Sketcher.Constraint("DistanceX", 1, 2, 1, 1, 15.0),
    Sketcher.Constraint("Angle", 2, Q("45 deg")),
    Sketcher.Constraint("DistanceY", -1, 1, 0, 2, 4.0),
    Sketcher.Constraint("DistanceX", -1, 1, 0, 2, 56.75),
])
pad7 = body2.newObject("PartDesign::Pad", "Pad006")
pad7.Profile = sketch19
pad7.Length = 5

# Sketch on XY plane
sketch20 = body2.newObject("Sketcher::SketchObject", "Sketch019")
sketch20.AttachmentSupport = (doc.getObject("XY_Plane001"), [""])
sketch20.MapMode = "FlatFace"
sketch20.addGeometry(Part.Circle(App.Vector(53, 7.5, 0), App.Vector(0, 0, 1), 1.8), False)
sketch20.addConstraint([
    Sketcher.Constraint("Diameter", 0, 3.5),
    Sketcher.Constraint("DistanceX", -1, 1, 0, 3, 53.0),
    Sketcher.Constraint("DistanceY", -1, 1, 0, 3, 7.5),
])
pocket13 = body2.newObject("PartDesign::Pocket", "Pocket012")
pocket13.Profile = sketch20
pocket13.Length = 5
pocket13.Reversed = True

# Sketch on XZ plane
sketch21 = body2.newObject("Sketcher::SketchObject", "Sketch020")
sketch21.AttachmentSupport = (doc.getObject("XZ_Plane001"), [""])
sketch21.MapMode = "FlatFace"
sketch21.AttachmentOffset = App.Placement(App.Vector(0, 0, -11.5), App.Rotation())
add_polygon(sketch21, [(50.2, 1), (50.2, 4), (55.8, 4), (55.8, 1)])  # lines 0-3
sketch21.addConstraint([
    Sketcher.Constraint("Vertical", 0),
    Sketcher.Constraint("Horizontal", 1),
    Sketcher.Constraint("Vertical", 2),
    Sketcher.Constraint("Horizontal", 3),
    Sketcher.Constraint("DistanceY", 0, 1, 0, 2, 3.0),
    Sketcher.Constraint("DistanceX", 1, 1, 1, 2, 5.6),
    Sketcher.Constraint("DistanceY", -1, 1, 0, 2, 4.0),
    Sketcher.Constraint("DistanceX", -1, 1, 0, 2, 50.2),
])
pocket14 = body2.newObject("PartDesign::Pocket", "Pocket013")
pocket14.Profile = sketch21
pocket14.Length = 7.5
pocket14.Reversed = True

doc.recompute()
